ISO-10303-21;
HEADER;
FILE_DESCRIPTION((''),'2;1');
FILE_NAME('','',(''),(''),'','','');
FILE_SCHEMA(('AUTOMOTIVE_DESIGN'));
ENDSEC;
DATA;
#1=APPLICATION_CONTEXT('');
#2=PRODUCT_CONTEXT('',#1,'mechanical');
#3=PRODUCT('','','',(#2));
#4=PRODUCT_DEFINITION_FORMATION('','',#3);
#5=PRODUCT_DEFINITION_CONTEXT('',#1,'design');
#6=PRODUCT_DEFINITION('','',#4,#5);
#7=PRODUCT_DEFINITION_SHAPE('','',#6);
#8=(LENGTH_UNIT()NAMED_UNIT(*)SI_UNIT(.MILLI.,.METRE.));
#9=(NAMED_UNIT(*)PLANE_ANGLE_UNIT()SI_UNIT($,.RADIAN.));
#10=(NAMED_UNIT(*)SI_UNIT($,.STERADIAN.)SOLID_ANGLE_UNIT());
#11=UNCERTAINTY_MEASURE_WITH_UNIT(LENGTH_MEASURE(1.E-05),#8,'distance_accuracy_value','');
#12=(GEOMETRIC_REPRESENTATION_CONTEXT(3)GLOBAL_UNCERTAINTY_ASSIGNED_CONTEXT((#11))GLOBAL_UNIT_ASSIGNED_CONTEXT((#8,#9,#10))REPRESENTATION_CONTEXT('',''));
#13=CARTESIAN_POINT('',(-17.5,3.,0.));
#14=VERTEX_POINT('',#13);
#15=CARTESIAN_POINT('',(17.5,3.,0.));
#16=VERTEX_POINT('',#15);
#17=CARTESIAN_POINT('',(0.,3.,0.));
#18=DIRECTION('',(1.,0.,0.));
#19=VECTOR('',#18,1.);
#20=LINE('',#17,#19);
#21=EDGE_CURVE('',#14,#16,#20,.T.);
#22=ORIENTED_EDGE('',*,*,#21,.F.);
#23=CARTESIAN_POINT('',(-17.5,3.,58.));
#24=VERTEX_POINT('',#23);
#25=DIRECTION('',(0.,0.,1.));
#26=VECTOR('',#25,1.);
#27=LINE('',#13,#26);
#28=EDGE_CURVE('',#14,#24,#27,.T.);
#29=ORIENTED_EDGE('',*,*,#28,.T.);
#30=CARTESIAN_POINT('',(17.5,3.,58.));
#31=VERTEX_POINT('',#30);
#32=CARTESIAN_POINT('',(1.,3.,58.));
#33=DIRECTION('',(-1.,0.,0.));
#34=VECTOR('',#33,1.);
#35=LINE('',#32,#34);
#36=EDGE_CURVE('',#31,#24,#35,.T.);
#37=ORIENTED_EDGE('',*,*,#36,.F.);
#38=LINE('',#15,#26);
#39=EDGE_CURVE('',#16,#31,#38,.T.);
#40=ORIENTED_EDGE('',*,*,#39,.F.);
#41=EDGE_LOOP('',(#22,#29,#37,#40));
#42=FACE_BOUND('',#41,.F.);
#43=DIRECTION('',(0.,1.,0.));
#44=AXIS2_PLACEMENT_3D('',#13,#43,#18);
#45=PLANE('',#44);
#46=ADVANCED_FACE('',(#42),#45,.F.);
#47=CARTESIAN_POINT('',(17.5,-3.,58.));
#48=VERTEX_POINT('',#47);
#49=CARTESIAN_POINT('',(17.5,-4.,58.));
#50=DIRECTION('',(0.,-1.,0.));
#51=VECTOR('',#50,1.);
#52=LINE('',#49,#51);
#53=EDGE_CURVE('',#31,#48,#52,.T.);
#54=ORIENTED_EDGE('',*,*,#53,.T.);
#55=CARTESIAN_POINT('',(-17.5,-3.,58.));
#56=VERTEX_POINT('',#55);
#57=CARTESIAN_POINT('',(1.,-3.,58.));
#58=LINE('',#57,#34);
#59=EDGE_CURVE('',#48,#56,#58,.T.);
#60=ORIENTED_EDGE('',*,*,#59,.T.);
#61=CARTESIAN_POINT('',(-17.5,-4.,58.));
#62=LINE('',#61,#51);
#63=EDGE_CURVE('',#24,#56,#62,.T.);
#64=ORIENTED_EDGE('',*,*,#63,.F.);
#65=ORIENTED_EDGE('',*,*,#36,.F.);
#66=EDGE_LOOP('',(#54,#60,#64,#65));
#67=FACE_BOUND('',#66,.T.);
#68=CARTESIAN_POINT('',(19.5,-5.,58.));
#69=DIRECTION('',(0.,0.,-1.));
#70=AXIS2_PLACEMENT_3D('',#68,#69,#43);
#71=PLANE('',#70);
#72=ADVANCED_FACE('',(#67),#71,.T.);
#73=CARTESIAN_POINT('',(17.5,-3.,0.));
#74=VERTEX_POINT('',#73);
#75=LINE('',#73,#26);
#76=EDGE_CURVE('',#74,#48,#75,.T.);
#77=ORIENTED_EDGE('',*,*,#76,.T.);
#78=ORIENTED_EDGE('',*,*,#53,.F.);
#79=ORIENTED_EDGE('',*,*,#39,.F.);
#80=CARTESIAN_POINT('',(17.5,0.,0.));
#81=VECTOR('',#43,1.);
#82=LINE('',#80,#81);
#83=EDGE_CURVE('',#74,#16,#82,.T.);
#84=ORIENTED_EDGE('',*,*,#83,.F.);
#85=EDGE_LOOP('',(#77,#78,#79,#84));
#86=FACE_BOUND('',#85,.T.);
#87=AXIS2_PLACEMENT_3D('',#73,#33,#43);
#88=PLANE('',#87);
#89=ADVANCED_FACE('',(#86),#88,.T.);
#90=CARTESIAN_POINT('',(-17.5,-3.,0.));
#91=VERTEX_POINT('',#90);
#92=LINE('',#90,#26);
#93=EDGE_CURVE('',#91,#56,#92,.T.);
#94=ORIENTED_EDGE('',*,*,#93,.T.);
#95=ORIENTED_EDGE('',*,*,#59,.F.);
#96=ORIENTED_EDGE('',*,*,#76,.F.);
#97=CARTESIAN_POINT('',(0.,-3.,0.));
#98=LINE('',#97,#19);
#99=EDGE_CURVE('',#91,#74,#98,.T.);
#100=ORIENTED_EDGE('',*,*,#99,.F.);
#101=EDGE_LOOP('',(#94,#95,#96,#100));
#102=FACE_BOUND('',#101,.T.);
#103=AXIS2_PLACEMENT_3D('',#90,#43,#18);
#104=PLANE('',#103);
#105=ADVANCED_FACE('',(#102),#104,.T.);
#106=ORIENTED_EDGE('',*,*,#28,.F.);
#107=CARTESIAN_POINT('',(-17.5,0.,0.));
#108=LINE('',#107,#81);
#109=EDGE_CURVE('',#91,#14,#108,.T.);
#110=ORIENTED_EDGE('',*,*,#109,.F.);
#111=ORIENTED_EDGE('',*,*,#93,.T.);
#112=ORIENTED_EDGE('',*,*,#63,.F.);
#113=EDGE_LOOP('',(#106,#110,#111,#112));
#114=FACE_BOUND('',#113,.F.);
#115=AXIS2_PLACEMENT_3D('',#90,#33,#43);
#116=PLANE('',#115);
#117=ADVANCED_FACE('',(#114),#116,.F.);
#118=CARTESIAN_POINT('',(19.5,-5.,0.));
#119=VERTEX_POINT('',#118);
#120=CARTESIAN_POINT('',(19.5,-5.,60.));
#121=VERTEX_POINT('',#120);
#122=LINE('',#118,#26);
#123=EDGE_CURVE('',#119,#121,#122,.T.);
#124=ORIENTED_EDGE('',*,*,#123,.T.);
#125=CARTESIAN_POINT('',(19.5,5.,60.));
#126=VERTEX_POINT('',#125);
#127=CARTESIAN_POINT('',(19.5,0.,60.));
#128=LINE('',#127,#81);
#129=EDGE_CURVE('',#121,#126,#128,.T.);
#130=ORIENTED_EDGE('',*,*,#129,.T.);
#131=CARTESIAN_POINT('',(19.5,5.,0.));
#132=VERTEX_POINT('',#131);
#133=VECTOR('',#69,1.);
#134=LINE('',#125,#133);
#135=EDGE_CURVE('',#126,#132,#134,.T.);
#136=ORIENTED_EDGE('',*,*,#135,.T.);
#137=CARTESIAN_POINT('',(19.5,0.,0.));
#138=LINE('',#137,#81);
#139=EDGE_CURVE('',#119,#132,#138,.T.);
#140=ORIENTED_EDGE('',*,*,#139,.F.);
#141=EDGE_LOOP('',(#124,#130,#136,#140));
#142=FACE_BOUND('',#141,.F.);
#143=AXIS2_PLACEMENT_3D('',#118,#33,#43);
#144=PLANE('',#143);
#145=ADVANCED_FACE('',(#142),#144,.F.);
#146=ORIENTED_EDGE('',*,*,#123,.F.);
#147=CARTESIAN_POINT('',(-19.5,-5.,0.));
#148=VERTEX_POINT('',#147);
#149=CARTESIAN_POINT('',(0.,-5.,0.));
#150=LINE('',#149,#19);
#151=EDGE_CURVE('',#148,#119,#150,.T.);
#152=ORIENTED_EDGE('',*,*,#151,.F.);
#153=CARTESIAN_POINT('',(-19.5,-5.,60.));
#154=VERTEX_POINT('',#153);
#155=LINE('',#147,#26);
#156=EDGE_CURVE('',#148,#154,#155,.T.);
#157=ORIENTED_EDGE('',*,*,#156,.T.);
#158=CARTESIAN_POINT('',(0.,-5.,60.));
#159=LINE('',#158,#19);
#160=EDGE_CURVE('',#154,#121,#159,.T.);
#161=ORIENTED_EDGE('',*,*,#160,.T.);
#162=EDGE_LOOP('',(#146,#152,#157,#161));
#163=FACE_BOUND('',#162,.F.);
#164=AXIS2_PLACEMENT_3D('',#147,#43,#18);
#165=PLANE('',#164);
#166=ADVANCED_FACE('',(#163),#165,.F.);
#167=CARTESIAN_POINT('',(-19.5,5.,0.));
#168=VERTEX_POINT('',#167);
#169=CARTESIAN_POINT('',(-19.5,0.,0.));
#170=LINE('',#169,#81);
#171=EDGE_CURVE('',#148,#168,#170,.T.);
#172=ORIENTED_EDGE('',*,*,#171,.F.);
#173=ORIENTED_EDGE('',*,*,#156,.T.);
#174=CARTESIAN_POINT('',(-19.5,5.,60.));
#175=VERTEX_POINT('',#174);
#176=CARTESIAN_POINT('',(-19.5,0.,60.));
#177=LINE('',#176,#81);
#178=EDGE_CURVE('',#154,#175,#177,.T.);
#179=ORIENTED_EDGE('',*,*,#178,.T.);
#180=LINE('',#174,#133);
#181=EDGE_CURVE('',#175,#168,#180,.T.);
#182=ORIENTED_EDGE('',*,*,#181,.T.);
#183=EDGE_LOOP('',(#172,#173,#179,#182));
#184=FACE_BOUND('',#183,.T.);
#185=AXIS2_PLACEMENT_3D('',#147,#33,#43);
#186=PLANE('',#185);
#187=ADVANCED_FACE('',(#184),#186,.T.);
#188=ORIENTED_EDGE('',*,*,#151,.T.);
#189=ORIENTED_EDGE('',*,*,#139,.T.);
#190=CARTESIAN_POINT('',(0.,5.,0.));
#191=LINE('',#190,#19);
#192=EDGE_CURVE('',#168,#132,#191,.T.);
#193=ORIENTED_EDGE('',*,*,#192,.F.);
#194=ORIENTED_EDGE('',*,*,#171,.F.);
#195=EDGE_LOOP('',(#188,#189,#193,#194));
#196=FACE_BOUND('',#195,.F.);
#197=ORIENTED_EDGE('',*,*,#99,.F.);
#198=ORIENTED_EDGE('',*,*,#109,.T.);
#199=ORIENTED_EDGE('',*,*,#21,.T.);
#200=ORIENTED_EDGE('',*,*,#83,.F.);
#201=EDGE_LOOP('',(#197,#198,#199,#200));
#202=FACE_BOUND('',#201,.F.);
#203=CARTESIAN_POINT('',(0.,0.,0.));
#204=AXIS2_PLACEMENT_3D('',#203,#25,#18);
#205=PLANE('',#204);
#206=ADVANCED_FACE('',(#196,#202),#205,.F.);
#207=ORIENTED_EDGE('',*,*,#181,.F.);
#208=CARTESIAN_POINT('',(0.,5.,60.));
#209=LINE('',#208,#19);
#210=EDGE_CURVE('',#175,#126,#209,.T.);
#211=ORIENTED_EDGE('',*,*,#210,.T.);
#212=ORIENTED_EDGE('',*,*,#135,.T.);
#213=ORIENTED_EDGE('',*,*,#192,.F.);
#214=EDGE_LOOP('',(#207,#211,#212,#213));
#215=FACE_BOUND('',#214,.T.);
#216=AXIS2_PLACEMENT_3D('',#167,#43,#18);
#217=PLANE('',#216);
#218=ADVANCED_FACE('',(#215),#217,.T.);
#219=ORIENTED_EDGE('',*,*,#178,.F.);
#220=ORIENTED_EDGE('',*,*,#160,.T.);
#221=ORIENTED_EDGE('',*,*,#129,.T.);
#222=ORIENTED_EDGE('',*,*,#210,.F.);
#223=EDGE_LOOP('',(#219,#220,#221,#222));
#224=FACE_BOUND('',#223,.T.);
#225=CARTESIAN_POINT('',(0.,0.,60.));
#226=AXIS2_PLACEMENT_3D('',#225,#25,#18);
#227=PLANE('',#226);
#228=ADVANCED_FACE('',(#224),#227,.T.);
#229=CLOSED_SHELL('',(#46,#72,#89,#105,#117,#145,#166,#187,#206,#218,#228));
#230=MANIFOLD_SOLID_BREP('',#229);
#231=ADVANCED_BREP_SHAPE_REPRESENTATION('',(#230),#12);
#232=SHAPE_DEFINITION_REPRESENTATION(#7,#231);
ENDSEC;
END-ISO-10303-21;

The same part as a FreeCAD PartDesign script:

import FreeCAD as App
import Part
import Sketcher
Q = App.Units.Quantity


def add_polygon(sketch, points):
    """Adds a closed chain of lines whose ends are joined by coincident constraints."""
    first, n = sketch.GeometryCount, len(points)
    for a, b in zip(points, points[1:] + points[:1]):
        sketch.addGeometry(Part.LineSegment(App.Vector(*a, 0), App.Vector(*b, 0)), False)
    for i in range(n):
        sketch.addConstraint(Sketcher.Constraint("Coincident", first + i, 2, first + (i + 1) % n, 1))

doc = App.newDocument("Part")
body = doc.addObject("PartDesign::Body", "Body")

sketch1 = body.newObject("Sketcher::SketchObject", "Sketch")
sketch1.AttachmentSupport = (doc.getObject("XY_Plane"), [""])
sketch1.MapMode = "FlatFace"
add_polygon(sketch1, [(-20, 5), (-20, -5), (20, -5), (20, 5)])
add_polygon(sketch1, [(18, -3), (-18, -3), (-18, 3), (18, 3)])
sketch1.addConstraint([
    Sketcher.Constraint("Vertical", 0),
    Sketcher.Constraint("Horizontal", 1),
    Sketcher.Constraint("Vertical", 2),
    Sketcher.Constraint("Horizontal", 3),
    Sketcher.Constraint("Horizontal", 4),
    Sketcher.Constraint("Vertical", 5),
    Sketcher.Constraint("Horizontal", 6),
    Sketcher.Constraint("Vertical", 7),
    Sketcher.Constraint("Symmetric", 0, 2, 2, 2, -1, 1),
    Sketcher.Constraint("Symmetric", 4, 2, 6, 2, -1, 1),
    Sketcher.Constraint("DistanceX", 1, 1, 1, 2, Q("39 mm")),
    Sketcher.Constraint("DistanceX", 4, 2, 4, 1, Q("35 mm")),
    Sketcher.Constraint("DistanceY", 0, 2, 0, 1, Q("10 mm")),
    Sketcher.Constraint("DistanceY", 5, 1, 5, 2, Q("6 mm")),
])
pad1 = body.newObject("PartDesign::Pad", "Pad")
pad1.Profile = sketch1
pad1.Length = 60

sketch2 = body.newObject("Sketcher::SketchObject", "Sketch001")
sketch2.AttachmentSupport = (doc.getObject("YZ_Plane"), [""])
sketch2.MapMode = "FlatFace"
sketch2.AttachmentOffset = App.Placement(App.Vector(0, 0, 19.5), App.Rotation())
add_polygon(sketch2, [(-5, 60), (-5, 58), (5, 58), (5, 60)])
sketch2.addConstraint([
    Sketcher.Constraint("Vertical", 0),
    Sketcher.Constraint("Horizontal", 1),
    Sketcher.Constraint("Vertical", 2),
    Sketcher.Constraint("Horizontal", 3),
    Sketcher.Constraint("DistanceX", 1, 1, 1, 2, Q("10 mm")),
    Sketcher.Constraint("DistanceY", 0, 2, 0, 1, Q("2 mm")),
    Sketcher.Constraint("DistanceX", 0, 2, -1, 1, Q("5 mm")),
    Sketcher.Constraint("DistanceY", -1, 1, 0, 2, Q("58 mm")),
])
pad2 = body.newObject("PartDesign::Pad", "Pad001")
pad2.Profile = sketch2
pad2.Type = "UpToLast"
pad2.Reversed = True

doc.recompute()
